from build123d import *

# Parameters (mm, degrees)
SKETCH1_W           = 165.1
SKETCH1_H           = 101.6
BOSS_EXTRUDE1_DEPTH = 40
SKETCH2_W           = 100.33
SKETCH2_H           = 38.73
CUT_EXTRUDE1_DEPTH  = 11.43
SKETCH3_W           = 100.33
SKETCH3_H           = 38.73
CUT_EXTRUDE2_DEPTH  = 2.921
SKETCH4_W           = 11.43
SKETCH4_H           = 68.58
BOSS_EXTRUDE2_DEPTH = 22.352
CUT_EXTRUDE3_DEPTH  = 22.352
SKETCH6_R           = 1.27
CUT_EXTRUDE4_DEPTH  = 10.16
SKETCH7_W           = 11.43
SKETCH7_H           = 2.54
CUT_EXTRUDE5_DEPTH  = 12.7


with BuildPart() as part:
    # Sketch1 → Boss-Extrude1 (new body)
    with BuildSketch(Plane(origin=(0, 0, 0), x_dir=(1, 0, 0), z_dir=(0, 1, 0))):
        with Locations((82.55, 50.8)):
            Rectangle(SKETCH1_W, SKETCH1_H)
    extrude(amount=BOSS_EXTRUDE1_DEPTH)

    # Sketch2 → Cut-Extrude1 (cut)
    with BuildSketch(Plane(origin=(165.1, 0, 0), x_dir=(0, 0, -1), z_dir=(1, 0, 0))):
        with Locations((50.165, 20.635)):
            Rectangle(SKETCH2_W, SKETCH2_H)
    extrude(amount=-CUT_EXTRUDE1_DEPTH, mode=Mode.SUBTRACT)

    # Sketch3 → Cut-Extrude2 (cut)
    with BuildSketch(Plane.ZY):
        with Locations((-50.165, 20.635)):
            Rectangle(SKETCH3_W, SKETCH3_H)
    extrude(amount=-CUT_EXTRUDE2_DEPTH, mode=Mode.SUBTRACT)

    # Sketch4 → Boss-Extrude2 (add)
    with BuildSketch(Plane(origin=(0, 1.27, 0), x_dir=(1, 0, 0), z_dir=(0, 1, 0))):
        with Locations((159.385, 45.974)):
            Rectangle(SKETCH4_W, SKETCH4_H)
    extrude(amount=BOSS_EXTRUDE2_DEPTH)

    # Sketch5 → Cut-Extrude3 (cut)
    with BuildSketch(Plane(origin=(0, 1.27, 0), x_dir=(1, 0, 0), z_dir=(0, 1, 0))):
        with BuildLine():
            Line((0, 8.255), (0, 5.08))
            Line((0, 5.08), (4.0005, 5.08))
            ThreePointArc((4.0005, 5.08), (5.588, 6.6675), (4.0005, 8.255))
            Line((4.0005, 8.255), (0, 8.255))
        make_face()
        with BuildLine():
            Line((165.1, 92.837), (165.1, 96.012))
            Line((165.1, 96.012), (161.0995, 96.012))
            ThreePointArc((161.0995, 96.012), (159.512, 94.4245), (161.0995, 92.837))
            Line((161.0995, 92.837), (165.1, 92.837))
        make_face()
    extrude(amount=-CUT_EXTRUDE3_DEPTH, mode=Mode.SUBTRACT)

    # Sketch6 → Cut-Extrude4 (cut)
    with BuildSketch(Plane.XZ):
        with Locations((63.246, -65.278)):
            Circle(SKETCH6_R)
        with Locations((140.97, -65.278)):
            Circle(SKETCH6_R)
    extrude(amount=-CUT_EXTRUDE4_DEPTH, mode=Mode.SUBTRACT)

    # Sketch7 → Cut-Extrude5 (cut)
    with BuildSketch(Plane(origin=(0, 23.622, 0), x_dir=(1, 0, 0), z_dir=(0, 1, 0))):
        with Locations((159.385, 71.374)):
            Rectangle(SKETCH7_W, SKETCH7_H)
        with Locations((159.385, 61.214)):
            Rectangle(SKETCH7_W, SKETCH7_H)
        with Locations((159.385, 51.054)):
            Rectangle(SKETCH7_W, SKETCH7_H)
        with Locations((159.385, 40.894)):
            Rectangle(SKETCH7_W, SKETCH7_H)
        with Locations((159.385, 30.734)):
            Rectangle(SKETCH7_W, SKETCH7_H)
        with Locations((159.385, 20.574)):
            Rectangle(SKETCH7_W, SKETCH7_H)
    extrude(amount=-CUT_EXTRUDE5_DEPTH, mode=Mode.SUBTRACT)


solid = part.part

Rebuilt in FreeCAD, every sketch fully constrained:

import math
import FreeCAD as App
import Part
import Sketcher

V = App.Vector
Q = App.Units.Quantity


def add_polygon(sketch, points):
    """Adds a closed chain of lines whose ends are joined by coincident constraints."""
    first, n = sketch.GeometryCount, len(points)
    for a, b in zip(points, points[1:] + points[:1]):
        sketch.addGeometry(Part.LineSegment(App.Vector(*a, 0), App.Vector(*b, 0)), False)
    for i in range(n):
        sketch.addConstraint(Sketcher.Constraint("Coincident", first + i, 2, first + (i + 1) % n, 1))

doc = App.newDocument("Part")
body = doc.addObject("PartDesign::Body", "Body")

# Sketch on XZ plane
sketch1 = body.newObject("Sketcher::SketchObject", "Sketch")
sketch1.AttachmentSupport = (doc.getObject("XZ_Plane"), [""])
sketch1.MapMode = "FlatFace"
add_polygon(sketch1, [(0, -102), (0, 0), (165, 0), (165, -102)])  # lines 0-3
sketch1.addConstraint([
    Sketcher.Constraint("Vertical", 0),
    Sketcher.Constraint("Horizontal", 1),
    Sketcher.Constraint("Vertical", 2),
    Sketcher.Constraint("Horizontal", 3),
    Sketcher.Constraint("Coincident", 0, 2, -1, 1),
    Sketcher.Constraint("DistanceY", 0, 1, 0, 2, Q("4 in")),
    Sketcher.Constraint("DistanceX", 1, 1, 1, 2, Q("6.5 in")),
])
pad1 = body.newObject("PartDesign::Pad", "Pad")
pad1.Profile = sketch1
pad1.Length = 40
pad1.Reversed = True

# Sketch on YZ plane
sketch2 = body.newObject("Sketcher::SketchObject", "Sketch001")
sketch2.AttachmentSupport = (doc.getObject("YZ_Plane"), [""])
sketch2.MapMode = "FlatFace"
sketch2.AttachmentOffset = App.Placement(V(0, 0, 6.5 * 25.4), App.Rotation())
add_polygon(sketch2, [(40, 0), (1, 0), (1, -100), (40, -100)])  # lines 0-3
sketch2.addConstraint([
    Sketcher.Constraint("Horizontal", 0),
    Sketcher.Constraint("Vertical", 1),
    Sketcher.Constraint("Horizontal", 2),
    Sketcher.Constraint("Vertical", 3),
    Sketcher.Constraint("PointOnObject", 0, 2, -1),
    Sketcher.Constraint("DistanceY", 1, 2, 1, 1, Q("3.95 in")),
    Sketcher.Constraint("DistanceX", -1, 1, 0, 2, Q("0.05 in")),
    Sketcher.Constraint("DistanceX", 0, 2, 0, 1, Q("38.73 mm")),
])
pocket1 = body.newObject("PartDesign::Pocket", "Pocket")
pocket1.Profile = sketch2
pocket1.Length = Q("0.45 in")

# Sketch on YZ plane
sketch3 = body.newObject("Sketcher::SketchObject", "Sketch002")
sketch3.AttachmentSupport = (doc.getObject("YZ_Plane"), [""])
sketch3.MapMode = "FlatFace"
add_polygon(sketch3, [(40, -100), (1, -100), (1, 0), (40, 0)])  # lines 0-3
sketch3.addConstraint([
    Sketcher.Constraint("Horizontal", 0),
    Sketcher.Constraint("Vertical", 1),
    Sketcher.Constraint("Horizontal", 2),
    Sketcher.Constraint("Vertical", 3),
    Sketcher.Constraint("PointOnObject", 1, 2, -1),
    Sketcher.Constraint("DistanceY", 1, 1, 1, 2, Q("3.95 in")),
    Sketcher.Constraint("DistanceX", -1, 1, 0, 2, Q("0.05 in")),
    Sketcher.Constraint("DistanceX", 0, 2, 0, 1, Q("38.73 mm")),
])
pocket2 = body.newObject("PartDesign::Pocket", "Pocket001")
pocket2.Profile = sketch3
pocket2.Length = Q("0.115 in")
pocket2.Reversed = True

# Sketch on XZ plane
sketch4 = body.newObject("Sketcher::SketchObject", "Sketch003")
sketch4.AttachmentSupport = (doc.getObject("XZ_Plane"), [""])
sketch4.MapMode = "FlatFace"
sketch4.AttachmentOffset = App.Placement(V(0, 0, -0.05 * 25.4), App.Rotation())
add_polygon(sketch4, [(154, -80), (154, -12), (165, -12), (165, -80)])  # lines 0-3
sketch4.addConstraint([
    Sketcher.Constraint("Vertical", 0),
    Sketcher.Constraint("Horizontal", 1),
    Sketcher.Constraint("Vertical", 2),
    Sketcher.Constraint("Horizontal", 3),
    Sketcher.Constraint("DistanceY", 0, 1, 0, 2, Q("2.7 in")),
    Sketcher.Constraint("DistanceX", 1, 1, 1, 2, Q("0.45 in")),
    Sketcher.Constraint("DistanceX", -1, 1, 1, 2, Q("6.5 in")),
    Sketcher.Constraint("DistanceY", 0, 2, -1, 1, Q("0.46 in")),
])
pad2 = body.newObject("PartDesign::Pad", "Pad001")
pad2.Profile = sketch4
pad2.Length = Q("0.88 in")
pad2.Reversed = True

# Sketch on XZ plane
sketch5 = body.newObject("Sketcher::SketchObject", "Sketch004")
sketch5.AttachmentSupport = (doc.getObject("XZ_Plane"), [""])
sketch5.MapMode = "FlatFace"
sketch5.AttachmentOffset = App.Placement(V(0, 0, -0.05 * 25.4), App.Rotation())
sketch5.addGeometry([
    Part.LineSegment(V(0, -8.3, 0), V(0, -5.1, 0)),  # 0
    Part.LineSegment(V(0, -5.1, 0), V(4, -5.1, 0)),  # 1
    Part.ArcOfCircle(Part.Circle(V(4, -6.7, 0), V(0, 0, 1), 1.6), math.radians(-90), math.radians(90)),  # 2
    Part.LineSegment(V(4, -8.3, 0), V(0, -8.3, 0)),  # 3
    Part.LineSegment(V(165.1, -92.8, 0), V(165.1, -96, 0)),  # 4
    Part.LineSegment(V(165.1, -96, 0), V(161.1, -96, 0)),  # 5
    Part.ArcOfCircle(Part.Circle(V(161.1, -94.4, 0), V(0, 0, 1), 1.6), math.radians(90), math.radians(270)),  # 6
    Part.LineSegment(V(161.1, -92.8, 0), V(165.1, -92.8, 0)),  # 7
], False)
sketch5.addConstraint([
    Sketcher.Constraint("Coincident", 0, 2, 1, 1),
    Sketcher.Constraint("Tangent", 1, 2, 2, 2),
    Sketcher.Constraint("Tangent", 2, 1, 3, 1),
    Sketcher.Constraint("Coincident", 3, 2, 0, 1),
    Sketcher.Constraint("Coincident", 4, 2, 5, 1),
    Sketcher.Constraint("Tangent", 5, 2, 6, 2),
    Sketcher.Constraint("Tangent", 6, 1, 7, 1),
    Sketcher.Constraint("Coincident", 7, 2, 4, 1),
    Sketcher.Constraint("Vertical", 0),
    Sketcher.Constraint("Horizontal", 1),
    Sketcher.Constraint("Horizontal", 3),
    Sketcher.Constraint("Vertical", 4),
    Sketcher.Constraint("Horizontal", 5),
    Sketcher.Constraint("Horizontal", 7),
    Sketcher.Constraint("Equal", 2, 6),
    Sketcher.Constraint("PointOnObject", 0, 2, -2),
    Sketcher.Constraint("Equal", 3, 5),
    Sketcher.Constraint("Radius", 2, Q("0.0625 in")),
    Sketcher.Constraint("DistanceY", 0, 2, -1, 1, Q("0.2 in")),
    Sketcher.Constraint("DistanceX", -1, 1, 4, 2, Q("6.5 in")),
    Sketcher.Constraint("DistanceY", 4, 2, -1, 1, Q("3.78 in")),
    Sketcher.Constraint("DistanceX", 1, 1, 1, 2, Q("0.1575 in")),
])
pocket3 = body.newObject("PartDesign::Pocket", "Pocket002")
pocket3.Profile = sketch5
pocket3.Length = Q("0.88 in")
pocket3.Reversed = True

# Sketch on XZ plane
sketch6 = body.newObject("Sketcher::SketchObject", "Sketch005")
sketch6.AttachmentSupport = (doc.getObject("XZ_Plane"), [""])
sketch6.MapMode = "FlatFace"
sketch6.addGeometry([
    Part.Circle(V(63.2, -65.3, 0), V(0, 0, 1), 1.3),
    Part.Circle(V(141, -65.3, 0), V(0, 0, 1), 1.3),
], False)
sketch6.addConstraint([
    Sketcher.Constraint("Equal", 0, 1),
    Sketcher.Constraint("Horizontal", 0, 3, 1, 3),
    Sketcher.Constraint("Diameter", 0, Q("0.1 in")),
    Sketcher.Constraint("DistanceX", -1, 1, 0, 3, Q("2.49 in")),
    Sketcher.Constraint("DistanceY", 0, 3, -1, 1, Q("2.57 in")),
    Sketcher.Constraint("DistanceX", -1, 1, 1, 3, Q("5.55 in")),
])
pocket4 = body.newObject("PartDesign::Pocket", "Pocket003")
pocket4.Profile = sketch6
pocket4.Length = Q("0.4 in")

# Sketch on XZ plane
sketch7 = body.newObject("Sketcher::SketchObject", "Sketch006")
sketch7.AttachmentSupport = (doc.getObject("XZ_Plane"), [""])
sketch7.MapMode = "FlatFace"
sketch7.AttachmentOffset = App.Placement(V(0, 0, -0.93 * 25.4), App.Rotation())
add_polygon(sketch7, [(153.7, -72.6), (153.7, -70.1), (165.1, -70.1), (165.1, -72.6)])  # lines 0-3
add_polygon(sketch7, [(153.7, -62.5), (153.7, -59.9), (165.1, -59.9), (165.1, -62.5)])  # lines 4-7
add_polygon(sketch7, [(153.7, -52.3), (153.7, -49.8), (165.1, -49.8), (165.1, -52.3)])  # lines 8-11
add_polygon(sketch7, [(153.7, -42.2), (153.7, -39.6), (165.1, -39.6), (165.1, -42.2)])  # lines 12-15
add_polygon(sketch7, [(153.7, -32), (153.7, -29.5), (165.1, -29.5), (165.1, -32)])  # lines 16-19
add_polygon(sketch7, [(153.7, -21.8), (153.7, -19.3), (165.1, -19.3), (165.1, -21.8)])  # lines 20-23
sketch7.addConstraint([
    Sketcher.Constraint("Vertical", 0),
    Sketcher.Constraint("Horizontal", 1),
    Sketcher.Constraint("Vertical", 2),
    Sketcher.Constraint("Horizontal", 3),
    Sketcher.Constraint("Vertical", 4),
    Sketcher.Constraint("Horizontal", 5),
    Sketcher.Constraint("Vertical", 6),
    Sketcher.Constraint("Horizontal", 7),
    Sketcher.Constraint("Vertical", 8),
    Sketcher.Constraint("Horizontal", 9),
    Sketcher.Constraint("Vertical", 10),
    Sketcher.Constraint("Horizontal", 11),
    Sketcher.Constraint("Vertical", 12),
    Sketcher.Constraint("Horizontal", 13),
    Sketcher.Constraint("Vertical", 14),
    Sketcher.Constraint("Horizontal", 15),
    Sketcher.Constraint("Vertical", 16),
    Sketcher.Constraint("Horizontal", 17),
    Sketcher.Constraint("Vertical", 18),
    Sketcher.Constraint("Horizontal", 19),
    Sketcher.Constraint("Vertical", 20),
    Sketcher.Constraint("Horizontal", 21),
    Sketcher.Constraint("Vertical", 22),
    Sketcher.Constraint("Horizontal", 23),
    Sketcher.Constraint("Vertical", 3, 2, 4, 2),
    Sketcher.Constraint("Vertical", 2, 2, 5, 2),
    Sketcher.Constraint("Vertical", 7, 2, 8, 2),
    Sketcher.Constraint("Vertical", 6, 2, 9, 2),
    Sketcher.Constraint("Vertical", 11, 2, 12, 2),
    Sketcher.Constraint("Vertical", 10, 2, 13, 2),
    Sketcher.Constraint("Vertical", 15, 2, 16, 2),
    Sketcher.Constraint("Vertical", 14, 2, 17, 2),
    Sketcher.Constraint("Vertical", 19, 2, 20, 2),
    Sketcher.Constraint("Vertical", 18, 2, 21, 2),
    Sketcher.Constraint("Equal", 2, 4),
    Sketcher.Constraint("Equal", 6, 8),
    Sketcher.Constraint("Equal", 10, 12),
    Sketcher.Constraint("Equal", 14, 16),
    Sketcher.Constraint("Equal", 18, 20),
    Sketcher.Constraint("DistanceY", 0, 1, 0, 2, Q("0.1 in")),
    Sketcher.Constraint("DistanceX", 1, 1, 1, 2, Q("0.45 in")),
    Sketcher.Constraint("DistanceX", -1, 1, 1, 2, Q("6.5 in")),
    Sketcher.Constraint("DistanceY", 0, 2, 4, 2, Q("0.4 in")),
    Sketcher.Constraint("DistanceY", 4, 2, 8, 2, Q("0.4 in")),
    Sketcher.Constraint("DistanceY", 8, 2, 12, 2, Q("0.4 in")),
    Sketcher.Constraint("DistanceY", 12, 2, 16, 2, Q("0.4 in")),
    Sketcher.Constraint("DistanceY", 16, 2, 20, 2, Q("0.4 in")),
    Sketcher.Constraint("DistanceY", 0, 2, -1, 1, Q("2.76 in")),
])
pocket5 = body.newObject("PartDesign::Pocket", "Pocket004")
pocket5.Profile = sketch7
pocket5.Length = Q("0.5 in")
pocket5.Reversed = True

doc.recompute()
